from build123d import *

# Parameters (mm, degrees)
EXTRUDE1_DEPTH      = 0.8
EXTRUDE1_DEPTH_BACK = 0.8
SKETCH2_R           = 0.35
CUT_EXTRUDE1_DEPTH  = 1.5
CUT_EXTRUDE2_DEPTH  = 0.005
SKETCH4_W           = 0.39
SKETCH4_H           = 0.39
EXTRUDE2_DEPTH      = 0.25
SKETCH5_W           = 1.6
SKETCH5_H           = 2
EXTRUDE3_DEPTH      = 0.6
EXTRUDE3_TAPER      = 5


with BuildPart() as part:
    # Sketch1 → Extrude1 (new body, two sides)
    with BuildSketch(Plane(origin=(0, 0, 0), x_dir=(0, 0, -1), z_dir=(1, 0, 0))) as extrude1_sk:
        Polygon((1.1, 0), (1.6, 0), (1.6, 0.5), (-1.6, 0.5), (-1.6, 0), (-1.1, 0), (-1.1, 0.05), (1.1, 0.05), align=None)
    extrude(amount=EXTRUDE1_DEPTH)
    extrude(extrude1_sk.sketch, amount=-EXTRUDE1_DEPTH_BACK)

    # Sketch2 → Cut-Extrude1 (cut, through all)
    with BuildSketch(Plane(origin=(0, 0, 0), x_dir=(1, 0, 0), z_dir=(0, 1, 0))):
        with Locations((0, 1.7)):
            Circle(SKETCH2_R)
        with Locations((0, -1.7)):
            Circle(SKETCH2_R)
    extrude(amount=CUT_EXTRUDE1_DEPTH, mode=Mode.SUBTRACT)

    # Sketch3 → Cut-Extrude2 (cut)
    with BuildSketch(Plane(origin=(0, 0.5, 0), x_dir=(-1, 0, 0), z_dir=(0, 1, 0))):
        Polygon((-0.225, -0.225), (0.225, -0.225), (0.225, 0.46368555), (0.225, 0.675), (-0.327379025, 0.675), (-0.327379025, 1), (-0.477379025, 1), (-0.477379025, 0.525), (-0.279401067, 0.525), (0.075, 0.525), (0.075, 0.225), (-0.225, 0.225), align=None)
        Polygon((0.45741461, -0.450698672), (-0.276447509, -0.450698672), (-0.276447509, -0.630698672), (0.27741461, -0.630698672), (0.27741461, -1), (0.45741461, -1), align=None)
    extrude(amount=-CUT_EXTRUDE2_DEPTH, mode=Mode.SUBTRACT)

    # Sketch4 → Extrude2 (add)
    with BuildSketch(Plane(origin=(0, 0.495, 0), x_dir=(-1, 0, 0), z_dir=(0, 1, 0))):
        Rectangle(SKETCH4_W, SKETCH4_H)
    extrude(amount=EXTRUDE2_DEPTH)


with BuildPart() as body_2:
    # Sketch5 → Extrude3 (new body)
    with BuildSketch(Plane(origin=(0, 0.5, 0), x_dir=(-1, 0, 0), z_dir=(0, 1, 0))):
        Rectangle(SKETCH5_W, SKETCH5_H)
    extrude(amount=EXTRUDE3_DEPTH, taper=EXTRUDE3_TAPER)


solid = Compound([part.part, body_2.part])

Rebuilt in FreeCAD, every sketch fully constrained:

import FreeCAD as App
import Part
import Sketcher

V = App.Vector
Q = App.Units.Quantity


def add_polygon(sketch, points):
    """Adds a closed chain of lines whose ends are joined by coincident constraints."""
    first, n = sketch.GeometryCount, len(points)
    for a, b in zip(points, points[1:] + points[:1]):
        sketch.addGeometry(Part.LineSegment(App.Vector(*a, 0), App.Vector(*b, 0)), False)
    for i in range(n):
        sketch.addConstraint(Sketcher.Constraint("Coincident", first + i, 2, first + (i + 1) % n, 1))

doc = App.newDocument("Part")
params = doc.addObject("Spreadsheet::Sheet", "Params")
for row, (alias, value) in enumerate([
    ("sketch1_width", "0.5 mm"),
    ("sketch1_height", "3.2 mm"),
    ("sketch1_width2", "0.05 mm"),
    ("pad1_length", "0.8 mm"),
    ("pad1_length2", "0.8 mm"),
    ("sketch2_diameter", "0.7 mm"),
    ("sketch3_width", "0.3 mm"),
    ("sketch3_height", "0.9 mm"),
    ("sketch3_width2", "0.45 mm"),
    ("sketch3_width3", "0.18 mm"),
    ("pocket2_length", "0.005 mm"),
    ("sketch4_width", "0.39 mm"),
    ("pad2_length", "0.25 mm"),
    ("sketch5_height", "2 mm"),
    ("sketch5_width", "1.6 mm"),
    ("pad3_length", "0.6 mm"),
    ("pad3_taper", "-5 deg"),
], start=1):
    params.set(f"A{row}", alias)
    params.set(f"B{row}", "=" + value)
    params.setAlias(f"B{row}", alias)

body = doc.addObject("PartDesign::Body", "Body")

# Sketch on YZ plane
sketch1 = body.newObject("Sketcher::SketchObject", "Sketch")
sketch1.AttachmentSupport = (doc.getObject("YZ_Plane"), [""])
sketch1.MapMode = "FlatFace"
add_polygon(sketch1, [(0, -1.1), (0, -1.6), (0.5, -1.6), (0.5, 1.6), (0, 1.6), (0, 1.1), (0.05, 1.1), (0.05, -1.1)])  # lines 0-7
sketch1.addConstraint(Sketcher.Constraint("Vertical", 0))
sketch1.addConstraint(Sketcher.Constraint("Horizontal", 1))
sketch1.addConstraint(Sketcher.Constraint("Vertical", 2))
sketch1.addConstraint(Sketcher.Constraint("Horizontal", 3))
sketch1.addConstraint(Sketcher.Constraint("Vertical", 4))
sketch1.addConstraint(Sketcher.Constraint("Horizontal", 5))
sketch1.addConstraint(Sketcher.Constraint("Vertical", 6))
sketch1.addConstraint(Sketcher.Constraint("Horizontal", 7))
sketch1.addConstraint(Sketcher.Constraint("Symmetric", 0, 2, 3, 2, -1, 1))
sketch1.addConstraint(Sketcher.Constraint("Symmetric", 4, 2, 7, 2, -1))
sketch1.addConstraint(Sketcher.Constraint("Equal", 3, 0))
sketch1.addConstraint(Sketcher.Constraint("DistanceX", 1, 1, 1, 2, Q("0.5 mm")))
sketch1.addConstraint(Sketcher.Constraint("DistanceY", 2, 1, 2, 2, Q("3.2 mm")))
sketch1.addConstraint(Sketcher.Constraint("DistanceX", 5, 1, 5, 2, Q("0.05 mm")))
sketch1.setExpression("Constraints[19]", "Params.sketch1_width")
sketch1.setExpression("Constraints[20]", "Params.sketch1_height")
sketch1.setExpression("Constraints[21]", "Params.sketch1_width2")
pad1 = body.newObject("PartDesign::Pad", "Pad")
pad1.Profile = sketch1
pad1.Type = "TwoLengths"
pad1.setExpression("Length", "Params.pad1_length")
pad1.setExpression("Length2", "Params.pad1_length2")

# Sketch on XZ plane
sketch2 = body.newObject("Sketcher::SketchObject", "Sketch001")
sketch2.AttachmentSupport = (doc.getObject("XZ_Plane"), [""])
sketch2.MapMode = "FlatFace"
sketch2.addGeometry(Part.Circle(V(0, -1.7, 0), V(0, 0, 1), 0.35), False)
sketch2.addGeometry(Part.Circle(V(0, 1.7, 0), V(0, 0, 1), 0.35), False)
sketch2.addConstraint(Sketcher.Constraint("Equal", 0, 1))
sketch2.addConstraint(Sketcher.Constraint("Symmetric", 0, 3, 1, 3, -1, 1))
sketch2.addConstraint(Sketcher.Constraint("PointOnObject", 0, 3, -2))
sketch2.addConstraint(Sketcher.Constraint("Diameter", 0, Q("0.7 mm")))
sketch2.addConstraint(Sketcher.Constraint("DistanceY", 0, 3, -1, 1, Q("1.7 mm")))
sketch2.setExpression("Constraints[3]", "Params.sketch2_diameter")
pocket1 = body.newObject("PartDesign::Pocket", "Pocket")
pocket1.Profile = sketch2
pocket1.Type = "ThroughAll"

# Sketch on XZ plane
sketch3 = body.newObject("Sketcher::SketchObject", "Sketch002")
sketch3.AttachmentSupport = (doc.getObject("XZ_Plane"), [""])
sketch3.MapMode = "FlatFace"
sketch3.AttachmentOffset = App.Placement(V(0, 0, -0.5), App.Rotation())
add_polygon(sketch3, [(0.23, -0.23), (-0.23, -0.23), (-0.23, 0.68), (0.33, 0.68), (0.33, 1), (0.48, 1), (0.48, 0.53), (-0.07, 0.53), (-0.07, 0.23), (0.23, 0.23)])  # lines 0-9
add_polygon(sketch3, [(-0.46, -0.45), (0.28, -0.45), (0.28, -0.63), (-0.28, -0.63), (-0.28, -1), (-0.46, -1)])  # lines 10-15
sketch3.addConstraint(Sketcher.Constraint("Horizontal", 0))
sketch3.addConstraint(Sketcher.Constraint("Vertical", 1))
sketch3.addConstraint(Sketcher.Constraint("Horizontal", 2))
sketch3.addConstraint(Sketcher.Constraint("Vertical", 3))
sketch3.addConstraint(Sketcher.Constraint("Horizontal", 4))
sketch3.addConstraint(Sketcher.Constraint("Vertical", 5))
sketch3.addConstraint(Sketcher.Constraint("Horizontal", 6))
sketch3.addConstraint(Sketcher.Constraint("Vertical", 7))
sketch3.addConstraint(Sketcher.Constraint("Horizontal", 8))
sketch3.addConstraint(Sketcher.Constraint("Vertical", 9))
sketch3.addConstraint(Sketcher.Constraint("Horizontal", 10))
sketch3.addConstraint(Sketcher.Constraint("Vertical", 11))
sketch3.addConstraint(Sketcher.Constraint("Horizontal", 12))
sketch3.addConstraint(Sketcher.Constraint("Vertical", 13))
sketch3.addConstraint(Sketcher.Constraint("Horizontal", 14))
sketch3.addConstraint(Sketcher.Constraint("Vertical", 15))
sketch3.addConstraint(Sketcher.Constraint("Symmetric", 0, 2, 8, 2, -1, 1))
sketch3.addConstraint(Sketcher.Constraint("Equal", 2, 6))
sketch3.addConstraint(Sketcher.Constraint("Equal", 8, 7))
sketch3.addConstraint(Sketcher.Constraint("Equal", 0, 9))
sketch3.addConstraint(Sketcher.Constraint("Equal", 14, 11))
sketch3.addConstraint(Sketcher.Constraint("DistanceX", 8, 1, 8, 2, Q("0.3 mm")))
sketch3.addConstraint(Sketcher.Constraint("DistanceY", 1, 1, 1, 2, Q("0.9 mm")))
sketch3.addConstraint(Sketcher.Constraint("DistanceY", -1, 1, 3, 2, Q("1 mm")))
sketch3.addConstraint(Sketcher.Constraint("DistanceY", 13, 2, -1, 1, Q("1 mm")))
sketch3.addConstraint(Sketcher.Constraint("DistanceX", 0, 2, 0, 1, Q("0.45 mm")))
sketch3.addConstraint(Sketcher.Constraint("DistanceX", 14, 2, 14, 1, Q("0.18 mm")))
sketch3.addConstraint(Sketcher.Constraint("DistanceY", 13, 2, 13, 1, Q("0.369301 mm")))
sketch3.addConstraint(Sketcher.Constraint("DistanceX", 2, 1, 2, 2, Q("0.552379 mm")))
sketch3.addConstraint(Sketcher.Constraint("DistanceX", 10, 1, 10, 2, Q("0.733862 mm")))
sketch3.addConstraint(Sketcher.Constraint("DistanceX", 10, 2, 5, 2, Q("0.200932 mm")))
sketch3.setExpression("Constraints[37]", "Params.sketch3_width")
sketch3.setExpression("Constraints[38]", "Params.sketch3_height")
sketch3.setExpression("Constraints[41]", "Params.sketch3_width2")
sketch3.setExpression("Constraints[42]", "Params.sketch3_width3")
pocket2 = body.newObject("PartDesign::Pocket", "Pocket001")
pocket2.Profile = sketch3
pocket2.setExpression("Length", "Params.pocket2_length")
pocket2.Reversed = True

# Sketch on XZ plane
sketch4 = body.newObject("Sketcher::SketchObject", "Sketch003")
sketch4.AttachmentSupport = (doc.getObject("XZ_Plane"), [""])
sketch4.MapMode = "FlatFace"
sketch4.AttachmentOffset = App.Placement(V(0, 0, -0.495), App.Rotation())
add_polygon(sketch4, [(0.2, 0.2), (0.2, -0.2), (-0.2, -0.2), (-0.2, 0.2)])  # lines 0-3
sketch4.addConstraint(Sketcher.Constraint("Vertical", 0))
sketch4.addConstraint(Sketcher.Constraint("Horizontal", 1))
sketch4.addConstraint(Sketcher.Constraint("Vertical", 2))
sketch4.addConstraint(Sketcher.Constraint("Horizontal", 3))
sketch4.addConstraint(Sketcher.Constraint("Symmetric", 0, 2, 2, 2, -1, 1))
sketch4.addConstraint(Sketcher.Constraint("Equal", 3, 0))
sketch4.addConstraint(Sketcher.Constraint("DistanceX", 1, 2, 1, 1, Q("0.39 mm")))
sketch4.setExpression("Constraints[10]", "Params.sketch4_width")
pad2 = body.newObject("PartDesign::Pad", "Pad001")
pad2.Profile = sketch4
pad2.setExpression("Length", "Params.pad2_length")
pad2.Reversed = True
body2 = doc.addObject("PartDesign::Body", "Body001")

# Sketch on XZ plane
sketch5 = body2.newObject("Sketcher::SketchObject", "Sketch004")
sketch5.AttachmentSupport = (doc.getObject("XZ_Plane001"), [""])
sketch5.MapMode = "FlatFace"
sketch5.AttachmentOffset = App.Placement(V(0, 0, -0.5), App.Rotation())
add_polygon(sketch5, [(0.8, 1), (0.8, -1), (-0.8, -1), (-0.8, 1)])  # lines 0-3
sketch5.addConstraint(Sketcher.Constraint("Vertical", 0))
sketch5.addConstraint(Sketcher.Constraint("Horizontal", 1))
sketch5.addConstraint(Sketcher.Constraint("Vertical", 2))
sketch5.addConstraint(Sketcher.Constraint("Horizontal", 3))
sketch5.addConstraint(Sketcher.Constraint("Symmetric", 0, 2, 2, 2, -1, 1))
sketch5.addConstraint(Sketcher.Constraint("DistanceY", 0, 2, 0, 1, Q("2 mm")))
sketch5.addConstraint(Sketcher.Constraint("DistanceX", 1, 2, 1, 1, Q("1.6 mm")))
sketch5.setExpression("Constraints[9]", "Params.sketch5_height")
sketch5.setExpression("Constraints[10]", "Params.sketch5_width")
pad3 = body2.newObject("PartDesign::Pad", "Pad002")
pad3.Profile = sketch5
pad3.setExpression("Length", "Params.pad3_length")
pad3.Reversed = True
pad3.setExpression("TaperAngle", "Params.pad3_taper")

doc.recompute()
